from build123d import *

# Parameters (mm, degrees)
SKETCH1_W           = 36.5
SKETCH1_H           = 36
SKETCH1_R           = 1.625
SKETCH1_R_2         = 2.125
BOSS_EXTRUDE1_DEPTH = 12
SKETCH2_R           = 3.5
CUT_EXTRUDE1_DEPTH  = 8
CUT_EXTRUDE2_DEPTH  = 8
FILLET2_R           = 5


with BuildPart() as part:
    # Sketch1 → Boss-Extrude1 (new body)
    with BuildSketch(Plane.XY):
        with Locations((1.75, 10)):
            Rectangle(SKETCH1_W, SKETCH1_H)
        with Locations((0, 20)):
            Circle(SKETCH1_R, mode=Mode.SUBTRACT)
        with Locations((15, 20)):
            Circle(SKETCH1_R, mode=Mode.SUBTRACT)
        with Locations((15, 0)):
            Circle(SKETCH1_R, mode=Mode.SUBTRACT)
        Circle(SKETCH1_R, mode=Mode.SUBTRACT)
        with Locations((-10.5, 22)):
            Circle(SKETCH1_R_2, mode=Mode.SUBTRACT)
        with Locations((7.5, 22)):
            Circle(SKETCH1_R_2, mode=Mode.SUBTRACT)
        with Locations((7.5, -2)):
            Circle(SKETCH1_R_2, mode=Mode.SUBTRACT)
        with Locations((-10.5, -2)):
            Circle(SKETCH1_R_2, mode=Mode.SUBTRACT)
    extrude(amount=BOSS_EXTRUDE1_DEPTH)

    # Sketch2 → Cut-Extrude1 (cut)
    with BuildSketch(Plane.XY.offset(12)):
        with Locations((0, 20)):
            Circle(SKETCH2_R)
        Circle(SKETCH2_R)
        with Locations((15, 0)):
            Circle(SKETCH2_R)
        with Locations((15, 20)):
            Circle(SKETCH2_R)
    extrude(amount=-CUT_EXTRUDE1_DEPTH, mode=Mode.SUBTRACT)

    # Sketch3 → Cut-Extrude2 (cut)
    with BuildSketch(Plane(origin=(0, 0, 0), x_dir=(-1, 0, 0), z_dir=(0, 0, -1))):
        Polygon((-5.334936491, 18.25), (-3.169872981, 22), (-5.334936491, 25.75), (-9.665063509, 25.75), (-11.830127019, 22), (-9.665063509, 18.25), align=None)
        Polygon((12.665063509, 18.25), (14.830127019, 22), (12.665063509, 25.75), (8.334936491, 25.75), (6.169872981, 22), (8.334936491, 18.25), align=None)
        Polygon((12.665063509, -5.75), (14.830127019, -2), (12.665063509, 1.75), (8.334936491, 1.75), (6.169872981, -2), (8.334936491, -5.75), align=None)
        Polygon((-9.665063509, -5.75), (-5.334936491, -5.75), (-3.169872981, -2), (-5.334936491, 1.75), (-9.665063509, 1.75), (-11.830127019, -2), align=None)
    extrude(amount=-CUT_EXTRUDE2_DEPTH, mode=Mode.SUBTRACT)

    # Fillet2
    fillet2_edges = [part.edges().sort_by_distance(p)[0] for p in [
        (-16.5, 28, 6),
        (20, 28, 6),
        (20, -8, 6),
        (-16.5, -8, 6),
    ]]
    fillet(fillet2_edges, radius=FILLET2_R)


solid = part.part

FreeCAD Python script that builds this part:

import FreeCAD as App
import Part
import Sketcher
from FreeCAD import Vector
Q = App.Units.Quantity


def edges_at(feature, points):
    """Names of the edges that pass closest to the given points."""
    edges = feature.Shape.Edges
    near = lambda p: min(range(len(edges)), key=lambda i: edges[i].distToShape(Part.Vertex(*p))[0])
    return sorted({f"Edge{near(p) + 1}" for p in points})

doc = App.newDocument("Part")
body = doc.addObject("PartDesign::Body", "Body")

# Sketch on XY plane
sketch1 = body.newObject("Sketcher::SketchObject", "Sketch")
sketch1.AttachmentSupport = (doc.getObject("XY_Plane"), [""])
sketch1.MapMode = "FlatFace"
sketch1.addGeometry([
    Part.LineSegment(Vector(-16.5, 28, 0), Vector(-16.5, -8, 0)),  # 0
    Part.LineSegment(Vector(-16.5, -8, 0), Vector(20, -8, 0)),  # 1
    Part.LineSegment(Vector(20, -8, 0), Vector(20, 28, 0)),  # 2
    Part.LineSegment(Vector(20, 28, 0), Vector(-16.5, 28, 0)),  # 3
    Part.Circle(Vector(-10.5, -2, 0), Vector(0, 0, 1), 2.1),  # 4
    Part.Circle(Vector(0, 0, 0), Vector(0, 0, 1), 1.6),  # 5
    Part.Circle(Vector(7.5, -2, 0), Vector(0, 0, 1), 2.1),  # 6
    Part.Circle(Vector(15, 0, 0), Vector(0, 0, 1), 1.6),  # 7
    Part.Circle(Vector(-10.5, 22, 0), Vector(0, 0, 1), 2.1),  # 8
    Part.Circle(Vector(0, 20, 0), Vector(0, 0, 1), 1.6),  # 9
    Part.Circle(Vector(7.5, 22, 0), Vector(0, 0, 1), 2.1),  # 10
    Part.Circle(Vector(15, 20, 0), Vector(0, 0, 1), 1.6),  # 11
], False)
sketch1.addConstraint([
    Sketcher.Constraint("Coincident", 0, 2, 1, 1),
    Sketcher.Constraint("Coincident", 1, 2, 2, 1),
    Sketcher.Constraint("Coincident", 2, 2, 3, 1),
    Sketcher.Constraint("Coincident", 3, 2, 0, 1),
    Sketcher.Constraint("Vertical", 0),
    Sketcher.Constraint("Horizontal", 1),
    Sketcher.Constraint("Vertical", 2),
    Sketcher.Constraint("Horizontal", 3),
    Sketcher.Constraint("Coincident", 5, 3, -1, 1),
    Sketcher.Constraint("Equal", 4, 6),
    Sketcher.Constraint("Equal", 5, 7),
    Sketcher.Constraint("Equal", 6, 8),
    Sketcher.Constraint("Equal", 7, 9),
    Sketcher.Constraint("Equal", 8, 10),
    Sketcher.Constraint("Equal", 9, 11),
    Sketcher.Constraint("PointOnObject", 7, 3, -1),
    Sketcher.Constraint("PointOnObject", 9, 3, -2),
    Sketcher.Constraint("Horizontal", 4, 3, 6, 3),
    Sketcher.Constraint("Horizontal", 8, 3, 10, 3),
    Sketcher.Constraint("Horizontal", 9, 3, 11, 3),
    Sketcher.Constraint("Vertical", 4, 3, 8, 3),
    Sketcher.Constraint("Vertical", 6, 3, 10, 3),
    Sketcher.Constraint("Vertical", 7, 3, 11, 3),
    Sketcher.Constraint("Diameter", 4, 4.25),
    Sketcher.Constraint("Diameter", 5, 3.25),
    Sketcher.Constraint("DistanceY", 0, 2, 0, 1, 36.0),
    Sketcher.Constraint("DistanceX", 1, 1, 1, 2, 36.5),
    Sketcher.Constraint("DistanceY", 4, 3, -1, 1, 2.0),
    Sketcher.Constraint("DistanceX", -1, 1, 7, 3, 15.0),
    Sketcher.Constraint("DistanceY", -1, 1, 8, 3, 22.0),
    Sketcher.Constraint("DistanceY", -1, 1, 9, 3, 20.0),
    Sketcher.Constraint("DistanceY", 0, 2, -1, 1, 8.0),
    Sketcher.Constraint("DistanceX", -1, 1, 1, 2, 20.0),
    Sketcher.Constraint("DistanceX", 4, 3, 6, 3, 18.0),
    Sketcher.Constraint("DistanceX", 0, 2, 4, 3, 6.0),
])
pad1 = body.newObject("PartDesign::Pad", "Pad")
pad1.Profile = sketch1
pad1.Length = 12

# Sketch on XY plane
sketch2 = body.newObject("Sketcher::SketchObject", "Sketch001")
sketch2.AttachmentSupport = (doc.getObject("XY_Plane"), [""])
sketch2.MapMode = "FlatFace"
sketch2.AttachmentOffset = App.Placement(Vector(0, 0, 12), App.Rotation())
sketch2.addGeometry([
    Part.Circle(Vector(0, 20, 0), Vector(0, 0, 1), 3.5),
    Part.Circle(Vector(0, 0, 0), Vector(0, 0, 1), 3.5),
    Part.Circle(Vector(15, 0, 0), Vector(0, 0, 1), 3.5),
    Part.Circle(Vector(15, 20, 0), Vector(0, 0, 1), 3.5),
], False)
sketch2.addConstraint([
    Sketcher.Constraint("Coincident", 1, 3, -1, 1),
    Sketcher.Constraint("Equal", 0, 1),
    Sketcher.Constraint("Equal", 1, 2),
    Sketcher.Constraint("Equal", 2, 3),
    Sketcher.Constraint("PointOnObject", 0, 3, -2),
    Sketcher.Constraint("PointOnObject", 2, 3, -1),
    Sketcher.Constraint("Horizontal", 0, 3, 3, 3),
    Sketcher.Constraint("Vertical", 2, 3, 3, 3),
    Sketcher.Constraint("Diameter", 0, 7.0),
    Sketcher.Constraint("DistanceY", -1, 1, 0, 3, 20.0),
    Sketcher.Constraint("DistanceX", -1, 1, 2, 3, 15.0),
])
pocket1 = body.newObject("PartDesign::Pocket", "Pocket")
pocket1.Profile = sketch2
pocket1.Length = 8

# Sketch on XY plane
sketch3 = body.newObject("Sketcher::SketchObject", "Sketch002")
sketch3.AttachmentSupport = (doc.getObject("XY_Plane"), [""])
sketch3.MapMode = "FlatFace"
sketch3.addGeometry([
    Part.LineSegment(Vector(5.3, 18.2, 0), Vector(3.2, 22, 0)),  # 0
    Part.LineSegment(Vector(3.2, 22, 0), Vector(5.3, 25.8, 0)),  # 1
    Part.LineSegment(Vector(5.3, 25.8, 0), Vector(9.7, 25.8, 0)),  # 2
    Part.LineSegment(Vector(9.7, 25.8, 0), Vector(11.8, 22, 0)),  # 3
    Part.LineSegment(Vector(11.8, 22, 0), Vector(9.7, 18.2, 0)),  # 4
    Part.LineSegment(Vector(9.7, 18.2, 0), Vector(5.3, 18.2, 0)),  # 5
    Part.LineSegment(Vector(-12.7, 18.2, 0), Vector(-14.8, 22, 0)),  # 6
    Part.LineSegment(Vector(-14.8, 22, 0), Vector(-12.7, 25.8, 0)),  # 7
    Part.LineSegment(Vector(-12.7, 25.8, 0), Vector(-8.3, 25.8, 0)),  # 8
    Part.LineSegment(Vector(-8.3, 25.8, 0), Vector(-6.2, 22, 0)),  # 9
    Part.LineSegment(Vector(-6.2, 22, 0), Vector(-8.3, 18.2, 0)),  # 10
    Part.LineSegment(Vector(-8.3, 18.2, 0), Vector(-12.7, 18.2, 0)),  # 11
    Part.LineSegment(Vector(-12.7, -5.8, 0), Vector(-14.8, -2, 0)),  # 12
    Part.LineSegment(Vector(-14.8, -2, 0), Vector(-12.7, 1.8, 0)),  # 13
    Part.LineSegment(Vector(-12.7, 1.8, 0), Vector(-8.3, 1.8, 0)),  # 14
    Part.LineSegment(Vector(-8.3, 1.8, 0), Vector(-6.2, -2, 0)),  # 15
    Part.LineSegment(Vector(-6.2, -2, 0), Vector(-8.3, -5.8, 0)),  # 16
    Part.LineSegment(Vector(-8.3, -5.8, 0), Vector(-12.7, -5.8, 0)),  # 17
    Part.LineSegment(Vector(9.7, -5.8, 0), Vector(5.3, -5.8, 0)),  # 18
    Part.LineSegment(Vector(5.3, -5.8, 0), Vector(3.2, -2, 0)),  # 19
    Part.LineSegment(Vector(3.2, -2, 0), Vector(5.3, 1.8, 0)),  # 20
    Part.LineSegment(Vector(5.3, 1.8, 0), Vector(9.7, 1.8, 0)),  # 21
    Part.LineSegment(Vector(9.7, 1.8, 0), Vector(11.8, -2, 0)),  # 22
    Part.LineSegment(Vector(11.8, -2, 0), Vector(9.7, -5.8, 0)),  # 23
], False)
sketch3.addConstraint([
    Sketcher.Constraint("Coincident", 0, 2, 1, 1),
    Sketcher.Constraint("Coincident", 1, 2, 2, 1),
    Sketcher.Constraint("Coincident", 2, 2, 3, 1),
    Sketcher.Constraint("Coincident", 3, 2, 4, 1),
    Sketcher.Constraint("Coincident", 4, 2, 5, 1),
    Sketcher.Constraint("Coincident", 5, 2, 0, 1),
    Sketcher.Constraint("Coincident", 6, 2, 7, 1),
    Sketcher.Constraint("Coincident", 7, 2, 8, 1),
    Sketcher.Constraint("Coincident", 8, 2, 9, 1),
    Sketcher.Constraint("Coincident", 9, 2, 10, 1),
    Sketcher.Constraint("Coincident", 10, 2, 11, 1),
    Sketcher.Constraint("Coincident", 11, 2, 6, 1),
    Sketcher.Constraint("Coincident", 12, 2, 13, 1),
    Sketcher.Constraint("Coincident", 13, 2, 14, 1),
    Sketcher.Constraint("Coincident", 14, 2, 15, 1),
    Sketcher.Constraint("Coincident", 15, 2, 16, 1),
    Sketcher.Constraint("Coincident", 16, 2, 17, 1),
    Sketcher.Constraint("Coincident", 17, 2, 12, 1),
    Sketcher.Constraint("Coincident", 18, 2, 19, 1),
    Sketcher.Constraint("Coincident", 19, 2, 20, 1),
    Sketcher.Constraint("Coincident", 20, 2, 21, 1),
    Sketcher.Constraint("Coincident", 21, 2, 22, 1),
    Sketcher.Constraint("Coincident", 22, 2, 23, 1),
    Sketcher.Constraint("Coincident", 23, 2, 18, 1),
    Sketcher.Constraint("Horizontal", 2),
    Sketcher.Constraint("Horizontal", 5),
    Sketcher.Constraint("Horizontal", 8),
    Sketcher.Constraint("Horizontal", 11),
    Sketcher.Constraint("Horizontal", 14),
    Sketcher.Constraint("Horizontal", 17),
    Sketcher.Constraint("Horizontal", 18),
    Sketcher.Constraint("Horizontal", 21),
    Sketcher.Constraint("Parallel", 0, 3),
    Sketcher.Constraint("Parallel", 1, 4),
    Sketcher.Constraint("Parallel", 3, 6),
    Sketcher.Constraint("Parallel", 4, 7),
    Sketcher.Constraint("Parallel", 6, 9),
    Sketcher.Constraint("Parallel", 7, 10),
    Sketcher.Constraint("Parallel", 9, 12),
    Sketcher.Constraint("Parallel", 10, 13),
    Sketcher.Constraint("Parallel", 12, 15),
    Sketcher.Constraint("Parallel", 13, 16),
    Sketcher.Constraint("Parallel", 15, 19),
    Sketcher.Constraint("Parallel", 16, 20),
    Sketcher.Constraint("Parallel", 19, 22),
    Sketcher.Constraint("Parallel", 20, 23),
    Sketcher.Constraint("Horizontal", 0, 2, 3, 2),
    Sketcher.Constraint("Horizontal", 3, 2, 6, 2),
    Sketcher.Constraint("Horizontal", 2, 2, 7, 2),
    Sketcher.Constraint("Horizontal", 6, 2, 9, 2),
    Sketcher.Constraint("Horizontal", 5, 2, 10, 2),
    Sketcher.Constraint("Horizontal", 12, 2, 15, 2),
    Sketcher.Constraint("Horizontal", 17, 2, 18, 2),
    Sketcher.Constraint("Horizontal", 15, 2, 19, 2),
    Sketcher.Constraint("Horizontal", 14, 2, 20, 2),
    Sketcher.Constraint("Horizontal", 19, 2, 22, 2),
    Sketcher.Constraint("Vertical", 2, 2, 4, 2),
    Sketcher.Constraint("Vertical", 1, 2, 5, 2),
    Sketcher.Constraint("Vertical", 6, 2, 12, 2),
    Sketcher.Constraint("Vertical", 11, 2, 13, 2),
    Sketcher.Constraint("Vertical", 10, 2, 14, 2),
    Sketcher.Constraint("Vertical", 14, 2, 16, 2),
    Sketcher.Constraint("Vertical", 5, 2, 18, 2),
    Sketcher.Constraint("Vertical", 4, 2, 21, 2),
    Sketcher.Constraint("Equal", 5, 8),
    Sketcher.Constraint("Angle", 0, Q("120 deg")),
    Sketcher.Constraint("DistanceY", -1, 1, 0, 2, 22.0),
    Sketcher.Constraint("DistanceY", 12, 2, -1, 1, 2.0),
    Sketcher.Constraint("DistanceX", 6, 2, 0, 2, 18.0),
    Sketcher.Constraint("DistanceY", 4, 2, 2, 2, 7.5),
    Sketcher.Constraint("DistanceX", 2, 1, 2, 2, 4.330127),
    Sketcher.Constraint("DistanceX", -1, 1, 0, 2, 3.169873),
])
pocket2 = body.newObject("PartDesign::Pocket", "Pocket001")
pocket2.Profile = sketch3
pocket2.Length = 8
pocket2.Reversed = True
doc.recompute()

fillet = body.newObject("PartDesign::Fillet", "Fillet")
fillet.Base = (pocket2, edges_at(pocket2, [
    (-16.5, 28, 6),
    (20, 28, 6),
    (20, -8, 6),
    (-16.5, -8, 6),
]))
fillet.Radius = 5

doc.recompute()
